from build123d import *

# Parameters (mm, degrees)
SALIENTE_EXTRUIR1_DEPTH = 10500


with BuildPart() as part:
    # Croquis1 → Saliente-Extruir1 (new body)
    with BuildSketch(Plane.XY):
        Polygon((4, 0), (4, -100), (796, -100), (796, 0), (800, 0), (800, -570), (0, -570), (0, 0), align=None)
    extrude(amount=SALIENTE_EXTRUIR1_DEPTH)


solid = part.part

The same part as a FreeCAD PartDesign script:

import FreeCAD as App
import Part
import Sketcher

V = App.Vector
Q = App.Units.Quantity

doc = App.newDocument("Part")
body = doc.addObject("PartDesign::Body", "Body")

sketch1 = body.newObject("Sketcher::SketchObject", "Sketch")
sketch1.AttachmentSupport = (doc.getObject("XY_Plane"), [""])
sketch1.MapMode = "FlatFace"
sketch1.addGeometry([
    Part.LineSegment(V(4, -100, 0), V(4, 0, 0)),
    Part.LineSegment(V(4, 0, 0), V(0, 0, 0)),
    Part.LineSegment(V(0, 0, 0), V(0, -570, 0)),
    Part.LineSegment(V(0, -570, 0), V(800, -570, 0)),
    Part.LineSegment(V(800, -570, 0), V(800, 0, 0)),
    Part.LineSegment(V(800, 0, 0), V(796, 0, 0)),
    Part.LineSegment(V(796, 0, 0), V(796, -100, 0)),
    Part.LineSegment(V(796, -100, 0), V(4, -100, 0)),
], False)
sketch1.addConstraint([
    Sketcher.Constraint("Coincident", 0, 2, 1, 1),
    Sketcher.Constraint("Coincident", 1, 2, 2, 1),
    Sketcher.Constraint("Coincident", 2, 2, 3, 1),
    Sketcher.Constraint("Coincident", 3, 2, 4, 1),
    Sketcher.Constraint("Coincident", 4, 2, 5, 1),
    Sketcher.Constraint("Coincident", 5, 2, 6, 1),
    Sketcher.Constraint("Coincident", 6, 2, 7, 1),
    Sketcher.Constraint("Coincident", 7, 2, 0, 1),
    Sketcher.Constraint("Vertical", 0),
    Sketcher.Constraint("Horizontal", 1),
    Sketcher.Constraint("Vertical", 2),
    Sketcher.Constraint("Horizontal", 3),
    Sketcher.Constraint("Vertical", 4),
    Sketcher.Constraint("Horizontal", 5),
    Sketcher.Constraint("Vertical", 6),
    Sketcher.Constraint("Horizontal", 7),
    Sketcher.Constraint("Coincident", 1, 2, -1, 1),
    Sketcher.Constraint("PointOnObject", 4, 2, -1),
    Sketcher.Constraint("Equal", 1, 5),
    Sketcher.Constraint("DistanceX", 1, 2, 1, 1, Q("4 mm")),
    Sketcher.Constraint("DistanceX", 3, 1, 3, 2, Q("800 mm")),
    Sketcher.Constraint("DistanceY", 0, 1, 0, 2, Q("100 mm")),
    Sketcher.Constraint("DistanceY", 2, 2, 2, 1, Q("570 mm")),
])
pad1 = body.newObject("PartDesign::Pad", "Pad")
pad1.Profile = sketch1
pad1.Length = 10500

doc.recompute()
